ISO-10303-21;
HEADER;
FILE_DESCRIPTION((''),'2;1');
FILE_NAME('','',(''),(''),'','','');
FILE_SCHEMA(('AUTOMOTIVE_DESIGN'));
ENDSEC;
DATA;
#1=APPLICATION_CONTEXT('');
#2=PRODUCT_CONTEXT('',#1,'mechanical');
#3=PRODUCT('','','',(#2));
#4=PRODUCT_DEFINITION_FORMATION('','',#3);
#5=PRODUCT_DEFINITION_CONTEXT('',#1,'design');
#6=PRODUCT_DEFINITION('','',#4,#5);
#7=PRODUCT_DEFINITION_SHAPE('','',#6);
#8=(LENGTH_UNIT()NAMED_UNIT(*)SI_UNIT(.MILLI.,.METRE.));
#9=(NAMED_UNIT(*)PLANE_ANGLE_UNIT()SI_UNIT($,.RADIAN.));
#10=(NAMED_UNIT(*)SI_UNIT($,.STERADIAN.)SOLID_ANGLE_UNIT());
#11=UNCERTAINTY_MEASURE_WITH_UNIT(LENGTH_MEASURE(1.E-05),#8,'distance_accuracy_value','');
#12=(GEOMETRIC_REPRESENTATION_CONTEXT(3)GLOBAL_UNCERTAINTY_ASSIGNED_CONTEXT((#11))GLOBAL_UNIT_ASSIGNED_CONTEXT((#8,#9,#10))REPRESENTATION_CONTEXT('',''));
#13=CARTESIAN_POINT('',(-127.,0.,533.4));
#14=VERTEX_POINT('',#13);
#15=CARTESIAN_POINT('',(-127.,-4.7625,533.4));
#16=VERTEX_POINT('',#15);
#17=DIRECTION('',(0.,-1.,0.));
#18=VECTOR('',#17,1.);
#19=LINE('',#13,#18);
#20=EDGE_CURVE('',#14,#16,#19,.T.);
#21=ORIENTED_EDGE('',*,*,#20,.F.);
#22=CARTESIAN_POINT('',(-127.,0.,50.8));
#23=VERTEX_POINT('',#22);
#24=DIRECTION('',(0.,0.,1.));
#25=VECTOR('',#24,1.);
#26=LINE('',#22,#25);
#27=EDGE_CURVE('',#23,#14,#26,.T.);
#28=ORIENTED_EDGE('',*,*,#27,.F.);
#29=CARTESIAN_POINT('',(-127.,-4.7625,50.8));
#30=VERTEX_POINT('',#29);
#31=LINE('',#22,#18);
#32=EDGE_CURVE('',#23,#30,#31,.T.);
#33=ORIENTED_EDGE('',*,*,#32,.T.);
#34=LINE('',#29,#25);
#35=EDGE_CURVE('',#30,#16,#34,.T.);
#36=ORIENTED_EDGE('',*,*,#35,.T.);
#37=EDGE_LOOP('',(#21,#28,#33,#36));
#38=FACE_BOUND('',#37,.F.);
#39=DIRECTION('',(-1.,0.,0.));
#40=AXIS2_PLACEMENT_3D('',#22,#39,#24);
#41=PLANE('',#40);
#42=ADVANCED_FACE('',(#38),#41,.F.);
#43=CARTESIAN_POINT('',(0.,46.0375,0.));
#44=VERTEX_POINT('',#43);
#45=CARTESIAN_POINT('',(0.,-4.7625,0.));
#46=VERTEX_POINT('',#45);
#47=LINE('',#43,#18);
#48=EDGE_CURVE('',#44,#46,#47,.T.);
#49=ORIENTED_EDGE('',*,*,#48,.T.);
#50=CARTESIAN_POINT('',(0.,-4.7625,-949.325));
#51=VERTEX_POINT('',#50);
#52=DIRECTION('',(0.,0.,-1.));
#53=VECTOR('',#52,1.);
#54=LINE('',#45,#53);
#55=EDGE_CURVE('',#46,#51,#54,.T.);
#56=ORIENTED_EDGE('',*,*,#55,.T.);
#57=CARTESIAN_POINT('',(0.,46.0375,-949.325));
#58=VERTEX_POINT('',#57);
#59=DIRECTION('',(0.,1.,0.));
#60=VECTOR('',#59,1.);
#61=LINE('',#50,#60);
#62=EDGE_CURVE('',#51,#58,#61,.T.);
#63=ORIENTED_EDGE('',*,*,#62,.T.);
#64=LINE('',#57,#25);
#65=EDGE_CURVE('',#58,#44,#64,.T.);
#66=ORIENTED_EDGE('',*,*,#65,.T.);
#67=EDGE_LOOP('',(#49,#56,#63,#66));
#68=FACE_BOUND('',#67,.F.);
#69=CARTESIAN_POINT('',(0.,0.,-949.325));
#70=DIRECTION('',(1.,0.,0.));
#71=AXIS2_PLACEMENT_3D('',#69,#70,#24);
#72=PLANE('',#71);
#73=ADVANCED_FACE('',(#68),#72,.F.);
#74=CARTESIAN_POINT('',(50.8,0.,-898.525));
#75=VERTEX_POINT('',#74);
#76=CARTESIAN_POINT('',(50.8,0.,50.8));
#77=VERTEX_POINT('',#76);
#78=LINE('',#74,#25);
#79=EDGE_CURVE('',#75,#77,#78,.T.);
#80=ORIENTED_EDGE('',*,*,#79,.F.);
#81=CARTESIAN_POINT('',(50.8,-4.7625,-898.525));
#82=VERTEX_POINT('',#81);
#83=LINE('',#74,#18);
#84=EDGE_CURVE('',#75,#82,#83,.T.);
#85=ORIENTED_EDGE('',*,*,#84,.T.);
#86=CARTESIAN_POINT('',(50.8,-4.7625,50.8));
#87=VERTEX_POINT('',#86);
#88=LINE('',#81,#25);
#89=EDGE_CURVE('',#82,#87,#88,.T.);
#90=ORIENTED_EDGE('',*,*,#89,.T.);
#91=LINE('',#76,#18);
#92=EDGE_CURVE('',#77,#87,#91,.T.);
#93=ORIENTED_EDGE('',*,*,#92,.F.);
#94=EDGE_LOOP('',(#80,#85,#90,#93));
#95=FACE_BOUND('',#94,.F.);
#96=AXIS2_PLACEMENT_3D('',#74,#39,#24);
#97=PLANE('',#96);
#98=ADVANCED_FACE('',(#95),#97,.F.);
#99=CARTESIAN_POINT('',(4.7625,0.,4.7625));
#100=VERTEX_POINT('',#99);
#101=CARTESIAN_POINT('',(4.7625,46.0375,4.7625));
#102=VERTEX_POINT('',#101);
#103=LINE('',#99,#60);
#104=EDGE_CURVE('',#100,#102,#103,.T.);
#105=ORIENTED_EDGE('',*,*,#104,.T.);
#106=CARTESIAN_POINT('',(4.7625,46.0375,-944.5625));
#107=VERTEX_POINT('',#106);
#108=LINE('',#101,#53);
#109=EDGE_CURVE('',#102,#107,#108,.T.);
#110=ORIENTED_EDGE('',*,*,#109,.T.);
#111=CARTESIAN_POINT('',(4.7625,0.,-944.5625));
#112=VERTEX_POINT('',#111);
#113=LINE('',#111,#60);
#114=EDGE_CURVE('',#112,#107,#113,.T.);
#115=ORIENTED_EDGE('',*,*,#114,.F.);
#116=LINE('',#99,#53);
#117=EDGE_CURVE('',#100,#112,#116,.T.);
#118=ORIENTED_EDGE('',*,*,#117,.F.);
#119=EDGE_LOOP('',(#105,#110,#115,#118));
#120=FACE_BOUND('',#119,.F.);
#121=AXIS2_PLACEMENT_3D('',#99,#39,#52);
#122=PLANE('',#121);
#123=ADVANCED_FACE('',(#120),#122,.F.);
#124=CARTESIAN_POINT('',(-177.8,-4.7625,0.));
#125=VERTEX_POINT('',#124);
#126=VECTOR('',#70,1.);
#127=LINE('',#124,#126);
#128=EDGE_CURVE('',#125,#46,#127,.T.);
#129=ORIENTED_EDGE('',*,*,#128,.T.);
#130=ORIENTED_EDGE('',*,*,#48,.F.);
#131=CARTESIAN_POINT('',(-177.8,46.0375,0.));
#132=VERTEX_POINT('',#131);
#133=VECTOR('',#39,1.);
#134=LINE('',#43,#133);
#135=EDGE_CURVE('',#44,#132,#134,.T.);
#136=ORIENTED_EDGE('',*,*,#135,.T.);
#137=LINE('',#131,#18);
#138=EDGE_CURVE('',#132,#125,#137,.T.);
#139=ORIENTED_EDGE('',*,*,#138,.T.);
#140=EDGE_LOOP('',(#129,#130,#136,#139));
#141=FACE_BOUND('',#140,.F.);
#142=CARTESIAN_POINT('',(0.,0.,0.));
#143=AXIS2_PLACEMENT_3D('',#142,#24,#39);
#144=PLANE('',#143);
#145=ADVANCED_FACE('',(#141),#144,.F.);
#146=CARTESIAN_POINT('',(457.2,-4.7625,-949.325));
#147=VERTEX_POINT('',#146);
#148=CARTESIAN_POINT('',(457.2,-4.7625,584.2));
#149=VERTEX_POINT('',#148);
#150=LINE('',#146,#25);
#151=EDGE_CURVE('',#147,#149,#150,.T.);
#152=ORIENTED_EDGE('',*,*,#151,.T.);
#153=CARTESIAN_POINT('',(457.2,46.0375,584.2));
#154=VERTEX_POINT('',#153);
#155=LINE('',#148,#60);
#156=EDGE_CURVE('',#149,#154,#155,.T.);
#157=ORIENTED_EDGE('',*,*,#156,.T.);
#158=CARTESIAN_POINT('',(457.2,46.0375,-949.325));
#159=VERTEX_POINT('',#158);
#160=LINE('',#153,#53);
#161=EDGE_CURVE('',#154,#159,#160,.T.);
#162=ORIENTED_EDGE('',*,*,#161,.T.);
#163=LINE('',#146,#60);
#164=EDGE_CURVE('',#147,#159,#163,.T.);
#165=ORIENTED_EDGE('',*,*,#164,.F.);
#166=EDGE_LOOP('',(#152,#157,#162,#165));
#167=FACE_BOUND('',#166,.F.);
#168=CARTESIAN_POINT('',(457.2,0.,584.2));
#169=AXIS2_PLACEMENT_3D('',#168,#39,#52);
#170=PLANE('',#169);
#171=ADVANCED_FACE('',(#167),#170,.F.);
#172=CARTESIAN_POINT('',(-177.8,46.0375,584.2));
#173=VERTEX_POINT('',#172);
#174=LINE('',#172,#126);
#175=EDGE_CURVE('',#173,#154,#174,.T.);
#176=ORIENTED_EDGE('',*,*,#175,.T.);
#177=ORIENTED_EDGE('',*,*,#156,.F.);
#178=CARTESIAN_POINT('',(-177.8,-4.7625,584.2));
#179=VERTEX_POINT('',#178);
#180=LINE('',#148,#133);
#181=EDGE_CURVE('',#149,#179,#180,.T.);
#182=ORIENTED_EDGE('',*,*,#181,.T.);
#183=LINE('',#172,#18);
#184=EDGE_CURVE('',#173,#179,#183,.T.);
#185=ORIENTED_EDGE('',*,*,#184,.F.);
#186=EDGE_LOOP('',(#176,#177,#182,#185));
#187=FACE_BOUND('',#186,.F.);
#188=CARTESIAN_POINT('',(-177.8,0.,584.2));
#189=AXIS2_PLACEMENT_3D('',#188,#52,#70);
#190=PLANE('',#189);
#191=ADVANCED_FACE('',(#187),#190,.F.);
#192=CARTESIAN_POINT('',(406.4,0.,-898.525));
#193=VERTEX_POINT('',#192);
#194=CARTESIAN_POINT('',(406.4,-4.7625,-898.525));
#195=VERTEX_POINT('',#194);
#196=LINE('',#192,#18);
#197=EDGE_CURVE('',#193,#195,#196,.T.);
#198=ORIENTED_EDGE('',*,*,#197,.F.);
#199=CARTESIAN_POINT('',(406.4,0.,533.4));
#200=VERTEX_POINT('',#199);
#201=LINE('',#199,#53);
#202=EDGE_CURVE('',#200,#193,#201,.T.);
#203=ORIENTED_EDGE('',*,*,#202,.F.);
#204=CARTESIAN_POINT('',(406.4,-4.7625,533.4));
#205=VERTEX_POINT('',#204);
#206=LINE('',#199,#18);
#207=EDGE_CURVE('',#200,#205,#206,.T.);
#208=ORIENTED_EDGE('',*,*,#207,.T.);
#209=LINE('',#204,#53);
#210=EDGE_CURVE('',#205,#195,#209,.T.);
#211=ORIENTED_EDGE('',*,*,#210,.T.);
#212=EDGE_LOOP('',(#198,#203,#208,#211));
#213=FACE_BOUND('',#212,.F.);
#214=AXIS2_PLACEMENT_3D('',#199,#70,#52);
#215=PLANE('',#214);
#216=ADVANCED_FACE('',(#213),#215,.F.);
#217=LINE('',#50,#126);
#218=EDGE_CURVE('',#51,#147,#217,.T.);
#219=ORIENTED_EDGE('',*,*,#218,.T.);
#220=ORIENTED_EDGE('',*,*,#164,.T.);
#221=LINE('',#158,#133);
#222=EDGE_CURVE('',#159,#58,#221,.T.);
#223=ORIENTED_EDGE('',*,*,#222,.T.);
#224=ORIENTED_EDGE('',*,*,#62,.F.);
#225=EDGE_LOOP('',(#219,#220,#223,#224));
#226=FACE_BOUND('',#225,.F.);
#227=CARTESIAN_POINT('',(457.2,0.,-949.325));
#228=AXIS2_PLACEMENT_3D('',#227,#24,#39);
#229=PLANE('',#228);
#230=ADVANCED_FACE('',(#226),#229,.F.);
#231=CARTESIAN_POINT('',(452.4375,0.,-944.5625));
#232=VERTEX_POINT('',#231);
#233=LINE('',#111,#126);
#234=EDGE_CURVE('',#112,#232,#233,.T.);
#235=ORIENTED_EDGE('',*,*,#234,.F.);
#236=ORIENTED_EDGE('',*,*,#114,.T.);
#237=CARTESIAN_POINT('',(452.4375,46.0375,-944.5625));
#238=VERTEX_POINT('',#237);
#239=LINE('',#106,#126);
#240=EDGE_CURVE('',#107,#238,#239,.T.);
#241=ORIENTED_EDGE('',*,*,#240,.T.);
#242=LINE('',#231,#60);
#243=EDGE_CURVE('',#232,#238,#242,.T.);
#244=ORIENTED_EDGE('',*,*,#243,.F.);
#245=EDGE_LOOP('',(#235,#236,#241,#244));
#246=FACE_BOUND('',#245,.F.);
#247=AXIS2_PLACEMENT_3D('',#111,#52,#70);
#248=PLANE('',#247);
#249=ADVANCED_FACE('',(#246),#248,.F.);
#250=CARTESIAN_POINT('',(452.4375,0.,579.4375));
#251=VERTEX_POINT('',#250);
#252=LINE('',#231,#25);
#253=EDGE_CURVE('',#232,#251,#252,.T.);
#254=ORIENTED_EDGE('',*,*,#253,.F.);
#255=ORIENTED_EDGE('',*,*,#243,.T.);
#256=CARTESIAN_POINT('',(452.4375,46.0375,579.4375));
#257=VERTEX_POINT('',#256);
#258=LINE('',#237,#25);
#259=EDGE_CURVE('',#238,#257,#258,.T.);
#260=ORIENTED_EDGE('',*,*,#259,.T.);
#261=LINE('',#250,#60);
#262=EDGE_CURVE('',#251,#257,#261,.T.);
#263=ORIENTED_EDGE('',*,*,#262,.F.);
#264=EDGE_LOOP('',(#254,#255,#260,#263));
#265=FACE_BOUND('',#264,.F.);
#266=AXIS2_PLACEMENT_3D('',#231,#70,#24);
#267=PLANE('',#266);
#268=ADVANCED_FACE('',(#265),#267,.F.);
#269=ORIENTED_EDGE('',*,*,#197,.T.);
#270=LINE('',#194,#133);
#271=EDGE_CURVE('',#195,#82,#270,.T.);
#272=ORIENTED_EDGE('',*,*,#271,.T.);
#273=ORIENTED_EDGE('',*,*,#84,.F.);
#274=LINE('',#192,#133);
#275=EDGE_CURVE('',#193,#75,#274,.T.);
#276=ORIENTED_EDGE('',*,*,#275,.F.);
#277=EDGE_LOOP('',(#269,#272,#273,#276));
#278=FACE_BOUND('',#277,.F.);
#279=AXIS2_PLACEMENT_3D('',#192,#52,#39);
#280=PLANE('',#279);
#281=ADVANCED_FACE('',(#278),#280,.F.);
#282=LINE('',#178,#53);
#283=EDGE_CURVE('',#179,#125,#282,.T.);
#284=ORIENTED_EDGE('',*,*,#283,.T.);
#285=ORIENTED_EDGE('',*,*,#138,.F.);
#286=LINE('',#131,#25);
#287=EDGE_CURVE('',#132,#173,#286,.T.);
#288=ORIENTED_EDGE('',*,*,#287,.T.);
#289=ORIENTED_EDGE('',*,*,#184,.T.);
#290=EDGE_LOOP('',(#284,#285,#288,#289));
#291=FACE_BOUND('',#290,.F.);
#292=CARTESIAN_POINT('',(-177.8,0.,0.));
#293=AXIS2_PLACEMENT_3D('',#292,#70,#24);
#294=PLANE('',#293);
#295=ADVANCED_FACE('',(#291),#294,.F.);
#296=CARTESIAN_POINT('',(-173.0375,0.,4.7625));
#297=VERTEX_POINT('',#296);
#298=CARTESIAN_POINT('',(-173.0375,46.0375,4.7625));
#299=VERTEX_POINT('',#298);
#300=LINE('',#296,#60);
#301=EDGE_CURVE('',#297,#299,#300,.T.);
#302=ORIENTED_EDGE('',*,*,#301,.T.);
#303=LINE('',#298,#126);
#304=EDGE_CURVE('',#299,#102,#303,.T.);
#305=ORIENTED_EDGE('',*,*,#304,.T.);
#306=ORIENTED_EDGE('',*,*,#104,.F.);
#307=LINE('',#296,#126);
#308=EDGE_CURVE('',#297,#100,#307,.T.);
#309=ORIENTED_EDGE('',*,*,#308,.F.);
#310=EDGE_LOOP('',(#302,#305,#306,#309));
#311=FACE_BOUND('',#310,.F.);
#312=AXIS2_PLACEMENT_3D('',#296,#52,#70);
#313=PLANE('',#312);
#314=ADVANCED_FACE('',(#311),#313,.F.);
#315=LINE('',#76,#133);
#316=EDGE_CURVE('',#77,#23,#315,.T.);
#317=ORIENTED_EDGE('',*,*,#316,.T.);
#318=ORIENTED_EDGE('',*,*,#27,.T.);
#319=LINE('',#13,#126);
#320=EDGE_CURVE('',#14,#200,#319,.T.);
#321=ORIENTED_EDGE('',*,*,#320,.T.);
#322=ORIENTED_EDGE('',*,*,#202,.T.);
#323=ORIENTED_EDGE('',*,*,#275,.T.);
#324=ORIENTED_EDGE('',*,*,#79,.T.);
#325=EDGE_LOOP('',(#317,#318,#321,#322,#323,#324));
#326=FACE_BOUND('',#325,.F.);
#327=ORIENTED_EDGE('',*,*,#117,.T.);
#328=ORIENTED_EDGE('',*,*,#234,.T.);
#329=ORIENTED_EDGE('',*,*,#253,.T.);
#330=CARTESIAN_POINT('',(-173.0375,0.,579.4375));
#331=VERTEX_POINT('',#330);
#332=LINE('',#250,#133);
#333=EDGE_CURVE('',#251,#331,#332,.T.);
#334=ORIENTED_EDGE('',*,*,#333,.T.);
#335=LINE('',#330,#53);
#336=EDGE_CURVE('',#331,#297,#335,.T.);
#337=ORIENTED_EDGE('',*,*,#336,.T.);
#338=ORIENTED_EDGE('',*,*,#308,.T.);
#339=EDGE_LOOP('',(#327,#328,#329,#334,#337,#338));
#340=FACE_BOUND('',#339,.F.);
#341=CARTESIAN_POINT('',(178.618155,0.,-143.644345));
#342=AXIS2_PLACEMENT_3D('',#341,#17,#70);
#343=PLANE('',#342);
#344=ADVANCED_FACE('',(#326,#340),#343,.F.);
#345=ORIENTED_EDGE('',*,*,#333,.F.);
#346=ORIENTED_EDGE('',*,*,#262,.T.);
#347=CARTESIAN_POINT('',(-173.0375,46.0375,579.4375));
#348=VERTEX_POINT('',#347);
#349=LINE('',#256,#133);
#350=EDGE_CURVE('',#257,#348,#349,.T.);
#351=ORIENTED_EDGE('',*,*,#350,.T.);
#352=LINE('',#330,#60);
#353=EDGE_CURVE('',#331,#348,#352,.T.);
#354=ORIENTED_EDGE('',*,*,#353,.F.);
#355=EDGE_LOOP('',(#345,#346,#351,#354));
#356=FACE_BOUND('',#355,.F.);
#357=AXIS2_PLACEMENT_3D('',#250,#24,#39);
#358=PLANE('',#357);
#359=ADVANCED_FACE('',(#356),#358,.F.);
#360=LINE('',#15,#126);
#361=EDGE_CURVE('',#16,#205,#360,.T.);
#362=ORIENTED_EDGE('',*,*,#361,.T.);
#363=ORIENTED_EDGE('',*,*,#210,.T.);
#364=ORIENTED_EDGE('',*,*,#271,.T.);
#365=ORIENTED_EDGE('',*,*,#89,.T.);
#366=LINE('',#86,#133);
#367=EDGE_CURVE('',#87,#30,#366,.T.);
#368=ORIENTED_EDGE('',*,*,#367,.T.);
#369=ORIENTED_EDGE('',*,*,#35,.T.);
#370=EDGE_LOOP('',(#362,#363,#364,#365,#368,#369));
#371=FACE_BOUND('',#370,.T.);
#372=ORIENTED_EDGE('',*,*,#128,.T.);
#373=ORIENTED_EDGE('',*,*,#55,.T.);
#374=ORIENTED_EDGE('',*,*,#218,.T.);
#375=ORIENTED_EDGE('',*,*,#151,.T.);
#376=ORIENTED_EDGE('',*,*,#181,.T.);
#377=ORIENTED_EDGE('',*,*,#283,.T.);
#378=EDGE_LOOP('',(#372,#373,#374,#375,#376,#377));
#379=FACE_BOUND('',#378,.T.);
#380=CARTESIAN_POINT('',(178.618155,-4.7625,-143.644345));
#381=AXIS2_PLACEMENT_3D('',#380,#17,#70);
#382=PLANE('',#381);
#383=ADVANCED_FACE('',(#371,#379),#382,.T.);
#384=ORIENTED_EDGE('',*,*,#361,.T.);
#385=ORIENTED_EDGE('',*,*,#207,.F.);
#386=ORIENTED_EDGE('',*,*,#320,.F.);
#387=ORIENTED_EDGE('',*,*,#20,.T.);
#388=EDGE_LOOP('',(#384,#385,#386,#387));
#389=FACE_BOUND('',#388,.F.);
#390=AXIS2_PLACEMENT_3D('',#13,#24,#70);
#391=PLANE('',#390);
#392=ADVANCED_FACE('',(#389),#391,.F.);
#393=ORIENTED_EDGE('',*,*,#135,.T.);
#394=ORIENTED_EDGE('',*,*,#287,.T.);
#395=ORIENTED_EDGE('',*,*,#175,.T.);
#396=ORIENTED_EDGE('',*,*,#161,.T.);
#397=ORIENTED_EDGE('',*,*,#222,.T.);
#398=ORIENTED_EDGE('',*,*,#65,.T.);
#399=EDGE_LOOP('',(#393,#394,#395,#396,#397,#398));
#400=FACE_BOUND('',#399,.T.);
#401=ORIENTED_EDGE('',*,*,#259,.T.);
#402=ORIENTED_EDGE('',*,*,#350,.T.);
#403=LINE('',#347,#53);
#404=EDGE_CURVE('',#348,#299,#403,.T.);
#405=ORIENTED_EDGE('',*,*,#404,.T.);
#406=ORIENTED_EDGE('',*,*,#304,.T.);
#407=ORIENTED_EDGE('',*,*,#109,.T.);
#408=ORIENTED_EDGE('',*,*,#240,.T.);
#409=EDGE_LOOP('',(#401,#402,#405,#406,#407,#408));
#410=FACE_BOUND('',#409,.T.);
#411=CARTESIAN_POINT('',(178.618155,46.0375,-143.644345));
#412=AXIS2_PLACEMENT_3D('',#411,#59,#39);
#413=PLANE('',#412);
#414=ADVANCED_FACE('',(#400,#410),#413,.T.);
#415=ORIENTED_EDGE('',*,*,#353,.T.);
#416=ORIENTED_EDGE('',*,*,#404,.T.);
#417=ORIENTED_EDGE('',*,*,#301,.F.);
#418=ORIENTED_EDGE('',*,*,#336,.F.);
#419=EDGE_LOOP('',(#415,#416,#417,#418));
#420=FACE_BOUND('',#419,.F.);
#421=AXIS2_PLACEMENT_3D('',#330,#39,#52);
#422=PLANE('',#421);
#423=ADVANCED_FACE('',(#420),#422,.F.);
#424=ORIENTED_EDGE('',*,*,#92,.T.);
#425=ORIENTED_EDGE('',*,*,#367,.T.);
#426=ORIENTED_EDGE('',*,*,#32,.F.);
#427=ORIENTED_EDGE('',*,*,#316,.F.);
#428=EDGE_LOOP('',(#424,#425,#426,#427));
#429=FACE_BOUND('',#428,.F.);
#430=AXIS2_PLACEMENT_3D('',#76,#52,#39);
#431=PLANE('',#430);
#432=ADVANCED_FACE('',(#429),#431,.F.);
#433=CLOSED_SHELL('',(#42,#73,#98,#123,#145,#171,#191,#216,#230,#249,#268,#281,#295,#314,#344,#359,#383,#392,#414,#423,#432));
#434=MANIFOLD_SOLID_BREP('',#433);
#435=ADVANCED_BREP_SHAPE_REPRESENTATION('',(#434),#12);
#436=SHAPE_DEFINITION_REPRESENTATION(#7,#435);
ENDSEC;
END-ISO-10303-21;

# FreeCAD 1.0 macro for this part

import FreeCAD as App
import Part
import Sketcher

V = App.Vector
Q = App.Units.Quantity

doc = App.newDocument("Part")
body = doc.addObject("PartDesign::Body", "Body")

# Sketch on XZ plane
sketch1 = body.newObject("Sketcher::SketchObject", "Sketch")
sketch1.AttachmentSupport = (doc.getObject("XZ_Plane"), [""])
sketch1.MapMode = "FlatFace"
sketch1.addGeometry([
    Part.LineSegment(V(457.2, 584.2, 0), V(-177.8, 584.2, 0)),  # 0
    Part.LineSegment(V(-177.8, 584.2, 0), V(-177.8, 0, 0)),  # 1
    Part.LineSegment(V(-177.8, 0, 0), V(0, 0, 0)),  # 2
    Part.LineSegment(V(0, 0, 0), V(0, -949.325, 0)),  # 3
    Part.LineSegment(V(0, -949.325, 0), V(457.2, -949.325, 0)),  # 4
    Part.LineSegment(V(457.2, -949.325, 0), V(457.2, 584.2, 0)),  # 5
    Part.LineSegment(V(406.4, -898.525, 0), V(50.8, -898.525, 0)),  # 6
    Part.LineSegment(V(50.8, -898.525, 0), V(50.8, 50.8, 0)),  # 7
    Part.LineSegment(V(50.8, 50.8, 0), V(-127, 50.8, 0)),  # 8
    Part.LineSegment(V(-127, 50.8, 0), V(-127, 533.4, 0)),  # 9
    Part.LineSegment(V(-127, 533.4, 0), V(406.4, 533.4, 0)),  # 10
    Part.LineSegment(V(406.4, 533.4, 0), V(406.4, -898.525, 0)),  # 11
], False)
sketch1.addConstraint([
    Sketcher.Constraint("Coincident", 0, 2, 1, 1),
    Sketcher.Constraint("Coincident", 1, 2, 2, 1),
    Sketcher.Constraint("Coincident", 2, 2, 3, 1),
    Sketcher.Constraint("Coincident", 3, 2, 4, 1),
    Sketcher.Constraint("Coincident", 4, 2, 5, 1),
    Sketcher.Constraint("Coincident", 5, 2, 0, 1),
    Sketcher.Constraint("Coincident", 6, 2, 7, 1),
    Sketcher.Constraint("Coincident", 7, 2, 8, 1),
    Sketcher.Constraint("Coincident", 8, 2, 9, 1),
    Sketcher.Constraint("Coincident", 9, 2, 10, 1),
    Sketcher.Constraint("Coincident", 10, 2, 11, 1),
    Sketcher.Constraint("Coincident", 11, 2, 6, 1),
    Sketcher.Constraint("Horizontal", 0),
    Sketcher.Constraint("Vertical", 1),
    Sketcher.Constraint("Horizontal", 2),
    Sketcher.Constraint("Vertical", 3),
    Sketcher.Constraint("Horizontal", 4),
    Sketcher.Constraint("Vertical", 5),
    Sketcher.Constraint("Horizontal", 6),
    Sketcher.Constraint("Vertical", 7),
    Sketcher.Constraint("Horizontal", 8),
    Sketcher.Constraint("Vertical", 9),
    Sketcher.Constraint("Horizontal", 10),
    Sketcher.Constraint("Vertical", 11),
    Sketcher.Constraint("Coincident", 2, 2, -1, 1),
    Sketcher.Constraint("Equal", 2, 8),
    Sketcher.Constraint("Equal", 3, 7),
    Sketcher.Constraint("DistanceX", 0, 2, 0, 1, Q("25 in")),
    Sketcher.Constraint("DistanceX", 2, 1, 2, 2, Q("7 in")),
    Sketcher.Constraint("DistanceX", 6, 2, 6, 1, Q("14 in")),
    Sketcher.Constraint("DistanceY", 1, 2, 1, 1, Q("23 in")),
    Sketcher.Constraint("DistanceY", 9, 1, 9, 2, Q("19 in")),
    Sketcher.Constraint("DistanceX", -1, 1, 6, 2, Q("2 in")),
    Sketcher.Constraint("DistanceY", -1, 1, 7, 2, Q("2 in")),
    Sketcher.Constraint("DistanceY", 3, 2, 3, 1, Q("37.375 in")),
])
pad1 = body.newObject("PartDesign::Pad", "Pad")
pad1.Profile = sketch1
pad1.Length = Q("0.1875 in")

# Sketch on XZ plane
sketch2 = body.newObject("Sketcher::SketchObject", "Sketch001")
sketch2.AttachmentSupport = (doc.getObject("XZ_Plane"), [""])
sketch2.MapMode = "FlatFace"
sketch2.addGeometry([
    Part.LineSegment(V(-177.8, 584.2, 0), V(457.2, 584.2, 0)),  # 0
    Part.LineSegment(V(457.2, 584.2, 0), V(457.2, -949.325, 0)),  # 1
    Part.LineSegment(V(457.2, -949.325, 0), V(0, -949.325, 0)),  # 2
    Part.LineSegment(V(0, -949.325, 0), V(0, 0, 0)),  # 3
    Part.LineSegment(V(0, 0, 0), V(-177.8, 0, 0)),  # 4
    Part.LineSegment(V(-177.8, 0, 0), V(-177.8, 584.2, 0)),  # 5
    Part.LineSegment(V(4.7625, 4.7625, 0), V(4.7625, -944.5625, 0)),  # 6
    Part.LineSegment(V(4.7625, -944.5625, 0), V(452.4375, -944.5625, 0)),  # 7
    Part.LineSegment(V(452.4375, -944.5625, 0), V(452.4375, 579.4375, 0)),  # 8
    Part.LineSegment(V(452.4375, 579.4375, 0), V(-173.0375, 579.4375, 0)),  # 9
    Part.LineSegment(V(-173.0375, 579.4375, 0), V(-173.0375, 4.7625, 0)),  # 10
    Part.LineSegment(V(-173.0375, 4.7625, 0), V(4.7625, 4.7625, 0)),  # 11
], False)
sketch2.addConstraint([
    Sketcher.Constraint("Coincident", 0, 2, 1, 1),
    Sketcher.Constraint("Coincident", 1, 2, 2, 1),
    Sketcher.Constraint("Coincident", 2, 2, 3, 1),
    Sketcher.Constraint("Coincident", 3, 2, 4, 1),
    Sketcher.Constraint("Coincident", 4, 2, 5, 1),
    Sketcher.Constraint("Coincident", 5, 2, 0, 1),
    Sketcher.Constraint("Coincident", 6, 2, 7, 1),
    Sketcher.Constraint("Coincident", 7, 2, 8, 1),
    Sketcher.Constraint("Coincident", 8, 2, 9, 1),
    Sketcher.Constraint("Coincident", 9, 2, 10, 1),
    Sketcher.Constraint("Coincident", 10, 2, 11, 1),
    Sketcher.Constraint("Coincident", 11, 2, 6, 1),
    Sketcher.Constraint("Horizontal", 0),
    Sketcher.Constraint("Vertical", 1),
    Sketcher.Constraint("Horizontal", 2),
    Sketcher.Constraint("Vertical", 3),
    Sketcher.Constraint("Horizontal", 4),
    Sketcher.Constraint("Vertical", 5),
    Sketcher.Constraint("Vertical", 6),
    Sketcher.Constraint("Horizontal", 7),
    Sketcher.Constraint("Vertical", 8),
    Sketcher.Constraint("Horizontal", 9),
    Sketcher.Constraint("Vertical", 10),
    Sketcher.Constraint("Horizontal", 11),
    Sketcher.Constraint("Coincident", 3, 2, -1, 1),
    Sketcher.Constraint("Equal", 4, 11),
    Sketcher.Constraint("Equal", 3, 6),
    Sketcher.Constraint("DistanceX", 0, 1, 0, 2, Q("25 in")),
    Sketcher.Constraint("DistanceX", 2, 2, 2, 1, Q("18 in")),
    Sketcher.Constraint("DistanceY", 5, 1, 5, 2, Q("23 in")),
    Sketcher.Constraint("DistanceY", 8, 1, 8, 2, Q("60 in")),
    Sketcher.Constraint("DistanceX", 7, 1, 7, 2, Q("17.625 in")),
    Sketcher.Constraint("DistanceY", 1, 2, 1, 1, Q("60.375 in")),
    Sketcher.Constraint("DistanceX", -1, 1, 6, 2, Q("0.1875 in")),
    Sketcher.Constraint("DistanceY", 6, 2, -1, 1, Q("37.1875 in")),
])
pad2 = body.newObject("PartDesign::Pad", "Pad001")
pad2.Profile = sketch2
pad2.Length = Q("1.8125 in")
pad2.Reversed = True

doc.recompute()
